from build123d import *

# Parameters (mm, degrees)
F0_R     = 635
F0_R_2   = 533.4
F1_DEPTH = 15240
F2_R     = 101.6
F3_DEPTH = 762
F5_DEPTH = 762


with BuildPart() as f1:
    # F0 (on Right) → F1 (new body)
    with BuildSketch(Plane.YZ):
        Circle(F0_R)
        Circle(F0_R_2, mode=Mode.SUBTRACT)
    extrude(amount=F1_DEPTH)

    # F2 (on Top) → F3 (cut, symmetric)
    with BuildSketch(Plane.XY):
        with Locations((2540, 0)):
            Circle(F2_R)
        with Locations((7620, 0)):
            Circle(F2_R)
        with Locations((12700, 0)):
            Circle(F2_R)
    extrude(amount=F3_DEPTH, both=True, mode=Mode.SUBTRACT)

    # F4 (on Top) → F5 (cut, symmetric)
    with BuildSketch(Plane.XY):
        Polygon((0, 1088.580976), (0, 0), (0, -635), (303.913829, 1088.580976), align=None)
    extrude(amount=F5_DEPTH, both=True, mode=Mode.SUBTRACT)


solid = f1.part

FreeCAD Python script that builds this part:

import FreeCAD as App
import Part
import Sketcher
Q = App.Units.Quantity


def add_polygon(sketch, points):
    """Adds a closed chain of lines whose ends are joined by coincident constraints."""
    first, n = sketch.GeometryCount, len(points)
    for a, b in zip(points, points[1:] + points[:1]):
        sketch.addGeometry(Part.LineSegment(App.Vector(*a, 0), App.Vector(*b, 0)), False)
    for i in range(n):
        sketch.addConstraint(Sketcher.Constraint("Coincident", first + i, 2, first + (i + 1) % n, 1))

doc = App.newDocument("Part")
params = doc.addObject("Spreadsheet::Sheet", "Params")
for row, (alias, value) in enumerate([
    ("sketch1_diameter", "50 in"),
    ("sketch1_diameter2", "42 in"),
    ("pad1_length", "600 in"),
    ("sketch2_diameter", "8 in"),
    ("pocket1_length", "60 in"),
    ("pocket2_length", "60 in"),
], start=1):
    params.set(f"A{row}", alias)
    params.set(f"B{row}", "=" + value)
    params.setAlias(f"B{row}", alias)

body = doc.addObject("PartDesign::Body", "Body")

# Sketch on YZ plane
sketch1 = body.newObject("Sketcher::SketchObject", "Sketch")
sketch1.AttachmentSupport = (doc.getObject("YZ_Plane"), [""])
sketch1.MapMode = "FlatFace"
sketch1.addGeometry(Part.Circle(App.Vector(0, 0, 0), App.Vector(0, 0, 1), 635), False)
sketch1.addGeometry(Part.Circle(App.Vector(0, 0, 0), App.Vector(0, 0, 1), 533.4), False)
sketch1.addConstraint(Sketcher.Constraint("Coincident", 0, 3, -1, 1))
sketch1.addConstraint(Sketcher.Constraint("Coincident", 1, 3, -1, 1))
sketch1.addConstraint(Sketcher.Constraint("Diameter", 0, Q("50 in")))
sketch1.addConstraint(Sketcher.Constraint("Diameter", 1, Q("42 in")))
sketch1.setExpression("Constraints[2]", "Params.sketch1_diameter")
sketch1.setExpression("Constraints[3]", "Params.sketch1_diameter2")
pad1 = body.newObject("PartDesign::Pad", "Pad")
pad1.Profile = sketch1
pad1.setExpression("Length", "Params.pad1_length")

# Sketch on XY plane
sketch2 = body.newObject("Sketcher::SketchObject", "Sketch001")
sketch2.AttachmentSupport = (doc.getObject("XY_Plane"), [""])
sketch2.MapMode = "FlatFace"
sketch2.addGeometry(Part.Circle(App.Vector(2540, 0, 0), App.Vector(0, 0, 1), 101.6), False)
sketch2.addGeometry(Part.Circle(App.Vector(7620, 0, 0), App.Vector(0, 0, 1), 101.6), False)
sketch2.addGeometry(Part.Circle(App.Vector(12700, 0, 0), App.Vector(0, 0, 1), 101.6), False)
sketch2.addConstraint(Sketcher.Constraint("Equal", 0, 1))
sketch2.addConstraint(Sketcher.Constraint("Equal", 1, 2))
sketch2.addConstraint(Sketcher.Constraint("PointOnObject", 0, 3, -1))
sketch2.addConstraint(Sketcher.Constraint("PointOnObject", 1, 3, -1))
sketch2.addConstraint(Sketcher.Constraint("PointOnObject", 2, 3, -1))
sketch2.addConstraint(Sketcher.Constraint("Diameter", 0, Q("8 in")))
sketch2.addConstraint(Sketcher.Constraint("DistanceX", -1, 1, 0, 3, Q("100 in")))
sketch2.addConstraint(Sketcher.Constraint("DistanceX", -1, 1, 1, 3, Q("300 in")))
sketch2.addConstraint(Sketcher.Constraint("DistanceX", -1, 1, 2, 3, Q("500 in")))
sketch2.setExpression("Constraints[5]", "Params.sketch2_diameter")
pocket1 = body.newObject("PartDesign::Pocket", "Pocket")
pocket1.Profile = sketch2
pocket1.setExpression("Length", "Params.pocket1_length")
pocket1.Midplane = True

# Sketch on XY plane
sketch3 = body.newObject("Sketcher::SketchObject", "Sketch002")
sketch3.AttachmentSupport = (doc.getObject("XY_Plane"), [""])
sketch3.MapMode = "FlatFace"
add_polygon(sketch3, [(0, 1088.580976), (0, -635), (303.913829, 1088.580976)])  # lines 0-2
sketch3.addConstraint(Sketcher.Constraint("Vertical", 0))
sketch3.addConstraint(Sketcher.Constraint("Horizontal", 2))
sketch3.addConstraint(Sketcher.Constraint("PointOnObject", 0, 2, -2))
sketch3.addConstraint(Sketcher.Constraint("DistanceY", 0, 2, -1, 1, Q("25 in")))
sketch3.addConstraint(Sketcher.Constraint("Angle", 1, Q("80 deg")))
sketch3.addConstraint(Sketcher.Constraint("DistanceX", 2, 2, 2, 1, Q("303.913829 mm")))
pocket2 = body.newObject("PartDesign::Pocket", "Pocket001")
pocket2.Profile = sketch3
pocket2.setExpression("Length", "Params.pocket2_length")
pocket2.Midplane = True

doc.recompute()
